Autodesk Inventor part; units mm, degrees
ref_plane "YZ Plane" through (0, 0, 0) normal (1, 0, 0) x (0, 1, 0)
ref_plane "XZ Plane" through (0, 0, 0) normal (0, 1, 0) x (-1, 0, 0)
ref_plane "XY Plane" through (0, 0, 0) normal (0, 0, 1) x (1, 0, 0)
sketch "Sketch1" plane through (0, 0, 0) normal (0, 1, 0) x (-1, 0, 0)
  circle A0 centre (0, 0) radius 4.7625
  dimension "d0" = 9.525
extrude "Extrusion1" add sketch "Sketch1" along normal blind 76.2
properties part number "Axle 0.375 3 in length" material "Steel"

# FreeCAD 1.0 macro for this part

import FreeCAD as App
import Part
import Sketcher
from FreeCAD import Vector
Q = App.Units.Quantity

doc = App.newDocument("Part")
body = doc.addObject("PartDesign::Body", "Body")

# Sketch on XZ plane
sketch1 = body.newObject("Sketcher::SketchObject", "Sketch")
sketch1.AttachmentSupport = (doc.getObject("XZ_Plane"), [""])
sketch1.MapMode = "FlatFace"
sketch1.addGeometry(Part.Circle(Vector(0, 0, 0), Vector(0, 0, 1), 4.7625), False)
sketch1.addConstraint([
    Sketcher.Constraint("Coincident", 0, 3, -1, 1),
    Sketcher.Constraint("Diameter", 0, Q("0.375 in")),
])
pad1 = body.newObject("PartDesign::Pad", "Pad")
pad1.Profile = sketch1
pad1.Length = Q("3 in")
pad1.Reversed = True

doc.recompute()
